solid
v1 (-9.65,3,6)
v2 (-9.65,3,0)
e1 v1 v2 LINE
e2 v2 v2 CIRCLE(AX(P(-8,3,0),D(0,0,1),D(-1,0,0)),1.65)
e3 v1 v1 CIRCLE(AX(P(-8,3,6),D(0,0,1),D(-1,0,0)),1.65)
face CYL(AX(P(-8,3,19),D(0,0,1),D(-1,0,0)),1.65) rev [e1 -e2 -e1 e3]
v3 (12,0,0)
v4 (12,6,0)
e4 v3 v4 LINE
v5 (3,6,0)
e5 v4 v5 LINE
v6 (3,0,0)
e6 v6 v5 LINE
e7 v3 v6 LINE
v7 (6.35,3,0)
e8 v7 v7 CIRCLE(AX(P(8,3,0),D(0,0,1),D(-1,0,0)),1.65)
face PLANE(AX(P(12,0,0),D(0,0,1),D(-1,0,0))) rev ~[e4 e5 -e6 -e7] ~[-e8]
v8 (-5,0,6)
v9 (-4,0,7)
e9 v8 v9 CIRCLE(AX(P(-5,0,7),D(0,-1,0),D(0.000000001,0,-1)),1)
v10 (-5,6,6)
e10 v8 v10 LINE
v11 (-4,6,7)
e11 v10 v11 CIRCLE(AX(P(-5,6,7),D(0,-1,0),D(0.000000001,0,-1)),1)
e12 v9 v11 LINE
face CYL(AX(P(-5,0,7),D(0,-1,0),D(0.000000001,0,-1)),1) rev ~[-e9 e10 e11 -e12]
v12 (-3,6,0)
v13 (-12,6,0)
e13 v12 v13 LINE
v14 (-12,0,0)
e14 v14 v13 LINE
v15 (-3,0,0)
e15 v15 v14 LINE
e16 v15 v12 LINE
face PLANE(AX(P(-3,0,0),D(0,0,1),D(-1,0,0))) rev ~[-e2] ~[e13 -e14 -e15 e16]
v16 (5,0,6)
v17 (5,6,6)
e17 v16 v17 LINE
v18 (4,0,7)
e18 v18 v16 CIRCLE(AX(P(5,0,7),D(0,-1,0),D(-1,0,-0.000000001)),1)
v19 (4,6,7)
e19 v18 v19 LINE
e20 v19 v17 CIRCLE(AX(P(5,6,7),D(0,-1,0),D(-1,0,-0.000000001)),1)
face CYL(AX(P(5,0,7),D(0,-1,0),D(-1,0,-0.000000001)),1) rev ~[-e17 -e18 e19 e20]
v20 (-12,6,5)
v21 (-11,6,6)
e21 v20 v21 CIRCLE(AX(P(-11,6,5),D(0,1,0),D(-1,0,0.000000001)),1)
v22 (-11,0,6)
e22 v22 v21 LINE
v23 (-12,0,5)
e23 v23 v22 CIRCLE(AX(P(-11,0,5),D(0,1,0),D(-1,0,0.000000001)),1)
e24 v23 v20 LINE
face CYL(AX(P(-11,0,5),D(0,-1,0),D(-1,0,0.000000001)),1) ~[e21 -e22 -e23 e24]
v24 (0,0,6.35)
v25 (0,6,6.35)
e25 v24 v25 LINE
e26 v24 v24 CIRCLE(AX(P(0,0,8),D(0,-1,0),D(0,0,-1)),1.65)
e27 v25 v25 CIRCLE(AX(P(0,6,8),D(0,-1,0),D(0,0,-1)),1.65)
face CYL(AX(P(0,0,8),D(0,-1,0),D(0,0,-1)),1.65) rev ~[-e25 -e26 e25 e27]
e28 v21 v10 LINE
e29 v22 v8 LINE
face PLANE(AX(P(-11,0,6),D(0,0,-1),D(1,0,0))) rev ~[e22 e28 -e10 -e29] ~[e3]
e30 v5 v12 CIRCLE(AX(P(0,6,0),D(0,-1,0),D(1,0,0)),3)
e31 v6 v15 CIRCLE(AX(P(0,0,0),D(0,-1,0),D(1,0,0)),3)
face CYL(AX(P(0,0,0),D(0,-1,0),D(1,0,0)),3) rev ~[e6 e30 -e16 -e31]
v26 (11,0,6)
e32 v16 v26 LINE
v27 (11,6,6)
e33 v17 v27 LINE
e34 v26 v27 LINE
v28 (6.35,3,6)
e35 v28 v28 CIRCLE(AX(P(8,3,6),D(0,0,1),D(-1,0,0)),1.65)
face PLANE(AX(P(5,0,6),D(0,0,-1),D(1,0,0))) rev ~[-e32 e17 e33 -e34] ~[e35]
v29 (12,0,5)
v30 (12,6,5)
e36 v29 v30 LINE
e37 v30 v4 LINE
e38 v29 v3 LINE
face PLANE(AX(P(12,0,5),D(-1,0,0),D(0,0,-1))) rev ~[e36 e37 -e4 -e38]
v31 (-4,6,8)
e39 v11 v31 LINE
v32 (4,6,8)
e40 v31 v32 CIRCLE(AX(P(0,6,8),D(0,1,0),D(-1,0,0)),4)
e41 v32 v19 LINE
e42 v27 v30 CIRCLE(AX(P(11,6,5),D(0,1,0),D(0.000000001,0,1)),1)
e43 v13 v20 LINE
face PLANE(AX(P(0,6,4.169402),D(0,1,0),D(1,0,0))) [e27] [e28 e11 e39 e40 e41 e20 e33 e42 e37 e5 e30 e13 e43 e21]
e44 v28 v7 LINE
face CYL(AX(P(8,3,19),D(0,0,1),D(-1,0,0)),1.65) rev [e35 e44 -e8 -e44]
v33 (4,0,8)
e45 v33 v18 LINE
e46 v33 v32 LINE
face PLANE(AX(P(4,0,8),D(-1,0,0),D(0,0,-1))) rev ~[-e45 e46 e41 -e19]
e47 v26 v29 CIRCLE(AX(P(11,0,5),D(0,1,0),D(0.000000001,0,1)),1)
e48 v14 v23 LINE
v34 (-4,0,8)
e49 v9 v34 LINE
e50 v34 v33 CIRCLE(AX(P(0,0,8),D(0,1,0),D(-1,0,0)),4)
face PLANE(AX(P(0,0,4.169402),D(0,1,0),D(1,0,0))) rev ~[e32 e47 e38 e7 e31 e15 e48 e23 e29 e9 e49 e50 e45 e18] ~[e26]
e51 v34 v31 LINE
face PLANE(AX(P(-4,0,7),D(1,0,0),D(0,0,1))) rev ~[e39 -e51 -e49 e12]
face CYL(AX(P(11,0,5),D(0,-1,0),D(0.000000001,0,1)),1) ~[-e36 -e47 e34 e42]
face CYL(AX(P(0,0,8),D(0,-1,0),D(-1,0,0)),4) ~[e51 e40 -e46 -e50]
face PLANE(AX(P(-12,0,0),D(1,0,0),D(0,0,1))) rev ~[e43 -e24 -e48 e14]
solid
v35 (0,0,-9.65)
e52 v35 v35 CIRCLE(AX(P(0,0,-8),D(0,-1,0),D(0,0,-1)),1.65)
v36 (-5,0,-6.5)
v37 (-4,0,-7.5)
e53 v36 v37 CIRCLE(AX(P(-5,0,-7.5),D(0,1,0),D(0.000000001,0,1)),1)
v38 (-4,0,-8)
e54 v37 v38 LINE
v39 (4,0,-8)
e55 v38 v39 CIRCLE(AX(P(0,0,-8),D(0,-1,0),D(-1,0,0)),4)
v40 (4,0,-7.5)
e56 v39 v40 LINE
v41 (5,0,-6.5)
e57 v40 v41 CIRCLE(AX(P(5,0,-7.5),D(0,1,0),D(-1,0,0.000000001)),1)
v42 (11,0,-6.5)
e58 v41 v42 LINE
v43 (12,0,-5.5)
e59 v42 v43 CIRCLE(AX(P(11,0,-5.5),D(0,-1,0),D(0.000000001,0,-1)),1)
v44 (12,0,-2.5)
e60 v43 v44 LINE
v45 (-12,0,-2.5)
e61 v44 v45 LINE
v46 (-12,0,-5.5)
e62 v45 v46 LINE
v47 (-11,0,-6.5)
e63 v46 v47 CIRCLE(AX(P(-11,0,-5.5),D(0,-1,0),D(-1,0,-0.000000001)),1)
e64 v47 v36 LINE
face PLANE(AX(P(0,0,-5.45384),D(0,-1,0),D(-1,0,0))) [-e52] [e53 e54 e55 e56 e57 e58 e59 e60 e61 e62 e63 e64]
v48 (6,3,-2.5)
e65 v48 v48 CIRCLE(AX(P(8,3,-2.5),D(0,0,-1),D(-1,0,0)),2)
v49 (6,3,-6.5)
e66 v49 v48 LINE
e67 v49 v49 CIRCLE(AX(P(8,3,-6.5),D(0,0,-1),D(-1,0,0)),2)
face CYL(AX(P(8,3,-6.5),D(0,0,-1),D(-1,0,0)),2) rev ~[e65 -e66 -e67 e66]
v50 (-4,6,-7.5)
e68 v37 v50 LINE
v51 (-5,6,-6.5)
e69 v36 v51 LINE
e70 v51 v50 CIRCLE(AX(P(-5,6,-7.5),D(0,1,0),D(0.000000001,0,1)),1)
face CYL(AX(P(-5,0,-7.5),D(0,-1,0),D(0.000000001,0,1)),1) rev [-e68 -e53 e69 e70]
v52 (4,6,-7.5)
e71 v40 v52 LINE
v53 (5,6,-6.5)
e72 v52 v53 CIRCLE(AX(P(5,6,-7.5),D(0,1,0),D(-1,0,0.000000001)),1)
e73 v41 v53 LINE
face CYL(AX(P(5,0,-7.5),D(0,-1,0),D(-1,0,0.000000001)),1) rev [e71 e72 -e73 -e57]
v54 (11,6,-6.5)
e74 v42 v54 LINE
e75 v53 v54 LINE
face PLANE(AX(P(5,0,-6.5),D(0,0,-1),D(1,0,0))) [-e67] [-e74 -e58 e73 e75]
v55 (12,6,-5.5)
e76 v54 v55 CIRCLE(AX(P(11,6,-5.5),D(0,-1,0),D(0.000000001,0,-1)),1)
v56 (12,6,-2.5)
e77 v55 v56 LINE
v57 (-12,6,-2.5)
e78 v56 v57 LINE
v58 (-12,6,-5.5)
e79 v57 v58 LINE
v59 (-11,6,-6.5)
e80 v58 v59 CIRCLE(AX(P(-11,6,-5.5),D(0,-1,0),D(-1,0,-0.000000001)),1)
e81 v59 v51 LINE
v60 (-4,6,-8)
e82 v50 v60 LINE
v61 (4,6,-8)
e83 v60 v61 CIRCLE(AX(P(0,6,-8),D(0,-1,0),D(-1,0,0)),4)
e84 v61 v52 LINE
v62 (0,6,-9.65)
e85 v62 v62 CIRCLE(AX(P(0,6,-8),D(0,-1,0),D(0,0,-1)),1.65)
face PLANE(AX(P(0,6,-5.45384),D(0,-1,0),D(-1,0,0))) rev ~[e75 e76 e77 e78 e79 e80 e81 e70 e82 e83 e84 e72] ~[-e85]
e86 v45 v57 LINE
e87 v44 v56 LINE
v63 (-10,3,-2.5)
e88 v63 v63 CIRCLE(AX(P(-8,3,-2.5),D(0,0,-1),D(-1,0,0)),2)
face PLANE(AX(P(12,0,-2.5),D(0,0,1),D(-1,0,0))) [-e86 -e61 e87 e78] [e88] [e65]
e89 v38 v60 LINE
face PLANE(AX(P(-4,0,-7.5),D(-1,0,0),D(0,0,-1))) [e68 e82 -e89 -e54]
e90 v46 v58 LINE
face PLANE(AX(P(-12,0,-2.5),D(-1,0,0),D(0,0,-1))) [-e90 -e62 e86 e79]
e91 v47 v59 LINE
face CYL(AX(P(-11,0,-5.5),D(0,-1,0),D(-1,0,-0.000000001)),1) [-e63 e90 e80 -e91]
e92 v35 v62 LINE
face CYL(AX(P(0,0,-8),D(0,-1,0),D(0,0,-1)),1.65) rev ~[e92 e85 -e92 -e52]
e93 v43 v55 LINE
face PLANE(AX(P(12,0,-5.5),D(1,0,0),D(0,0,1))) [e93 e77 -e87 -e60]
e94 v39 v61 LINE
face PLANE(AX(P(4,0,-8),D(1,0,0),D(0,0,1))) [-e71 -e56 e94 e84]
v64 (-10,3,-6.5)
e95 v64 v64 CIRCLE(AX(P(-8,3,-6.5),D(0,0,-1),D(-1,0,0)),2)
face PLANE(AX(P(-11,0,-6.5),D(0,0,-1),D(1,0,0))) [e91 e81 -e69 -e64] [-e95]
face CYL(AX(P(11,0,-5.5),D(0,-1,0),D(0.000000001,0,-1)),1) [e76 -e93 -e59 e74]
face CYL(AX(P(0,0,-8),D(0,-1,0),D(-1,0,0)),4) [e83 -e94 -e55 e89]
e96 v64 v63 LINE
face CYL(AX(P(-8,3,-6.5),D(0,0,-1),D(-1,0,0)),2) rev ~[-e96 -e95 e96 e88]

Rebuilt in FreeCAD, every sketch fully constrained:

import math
import FreeCAD as App
import Part
import Sketcher
from FreeCAD import Vector

doc = App.newDocument("Part")
body = doc.addObject("PartDesign::Body", "Body")

sketch1 = body.newObject("Sketcher::SketchObject", "Sketch")
sketch1.AttachmentSupport = (doc.getObject("XZ_Plane"), [""])
sketch1.MapMode = "FlatFace"
sketch1.addGeometry([
    Part.LineSegment(Vector(-3, 0, 0), Vector(-12, 0, 0)),
    Part.LineSegment(Vector(-12, 0, 0), Vector(-12, 5, 0)),
    Part.ArcOfCircle(Part.Circle(Vector(-11, 5, 0), Vector(0, 0, 1), 1), math.radians(90), math.radians(180)),
    Part.LineSegment(Vector(-11, 6, 0), Vector(-5, 6, 0)),
    Part.ArcOfCircle(Part.Circle(Vector(-5, 7, 0), Vector(0, 0, 1), 1), math.radians(-90), math.radians(0)),
    Part.LineSegment(Vector(-4, 7, 0), Vector(-4, 8, 0)),
    Part.ArcOfCircle(Part.Circle(Vector(0, 8, 0), Vector(0, 0, 1), 4), math.radians(0), math.radians(180)),
    Part.LineSegment(Vector(4, 8, 0), Vector(4, 7, 0)),
    Part.ArcOfCircle(Part.Circle(Vector(5, 7, 0), Vector(0, 0, 1), 1), math.radians(-180), math.radians(-90)),
    Part.LineSegment(Vector(5, 6, 0), Vector(11, 6, 0)),
    Part.ArcOfCircle(Part.Circle(Vector(11, 5, 0), Vector(0, 0, 1), 1), math.radians(0), math.radians(90)),
    Part.LineSegment(Vector(12, 5, 0), Vector(12, 0, 0)),
    Part.LineSegment(Vector(12, 0, 0), Vector(3, 0, 0)),
    Part.ArcOfCircle(Part.Circle(Vector(0, 0, 0), Vector(0, 0, 1), 3), math.radians(0), math.radians(180)),
], False)
sketch1.addConstraint([
    Sketcher.Constraint("Coincident", 0, 2, 1, 1),
    Sketcher.Constraint("Tangent", 1, 2, 2, 2),
    Sketcher.Constraint("Tangent", 2, 1, 3, 1),
    Sketcher.Constraint("Tangent", 3, 2, 4, 1),
    Sketcher.Constraint("Tangent", 4, 2, 5, 1),
    Sketcher.Constraint("Tangent", 5, 2, 6, 2),
    Sketcher.Constraint("Tangent", 6, 1, 7, 1),
    Sketcher.Constraint("Tangent", 7, 2, 8, 1),
    Sketcher.Constraint("Tangent", 8, 2, 9, 1),
    Sketcher.Constraint("Tangent", 9, 2, 10, 2),
    Sketcher.Constraint("Tangent", 10, 1, 11, 1),
    Sketcher.Constraint("Coincident", 11, 2, 12, 1),
    Sketcher.Constraint("Coincident", 12, 2, 13, 1),
    Sketcher.Constraint("Coincident", 13, 2, 0, 1),
    Sketcher.Constraint("Horizontal", 0),
    Sketcher.Constraint("Vertical", 1),
    Sketcher.Constraint("Horizontal", 3),
    Sketcher.Constraint("Vertical", 5),
    Sketcher.Constraint("Vertical", 7),
    Sketcher.Constraint("Horizontal", 9),
    Sketcher.Constraint("Vertical", 11),
    Sketcher.Constraint("Horizontal", 12),
    Sketcher.Constraint("Coincident", 13, 3, -1, 1),
    Sketcher.Constraint("Equal", 2, 4),
    Sketcher.Constraint("Equal", 4, 8),
    Sketcher.Constraint("Equal", 8, 10),
    Sketcher.Constraint("Symmetric", 0, 2, 11, 2, -1, 1),
    Sketcher.Constraint("Symmetric", 4, 3, 8, 3, -2),
    Sketcher.Constraint("PointOnObject", 0, 2, -1),
    Sketcher.Constraint("Radius", 2, 1.0),
    Sketcher.Constraint("Radius", 6, 4.0),
    Sketcher.Constraint("Radius", 13, 3.0),
    Sketcher.Constraint("DistanceX", 0, 2, 0, 1, 9.0),
    Sketcher.Constraint("DistanceY", 1, 1, 1, 2, 5.0),
    Sketcher.Constraint("DistanceY", 5, 1, 5, 2, 1.0),
])
pad1 = body.newObject("PartDesign::Pad", "Pad")
pad1.Profile = sketch1
pad1.Length = 6
pad1.Reversed = True
body2 = doc.addObject("PartDesign::Body", "Body001")

sketch2 = body2.newObject("Sketcher::SketchObject", "Sketch001")
sketch2.AttachmentSupport = (doc.getObject("XZ_Plane001"), [""])
sketch2.MapMode = "FlatFace"
sketch2.addGeometry([
    Part.LineSegment(Vector(-12, -2.5, 0), Vector(12, -2.5, 0)),
    Part.LineSegment(Vector(12, -2.5, 0), Vector(12, -5.5, 0)),
    Part.ArcOfCircle(Part.Circle(Vector(11, -5.5, 0), Vector(0, 0, 1), 1), math.radians(-90), math.radians(0)),
    Part.LineSegment(Vector(11, -6.5, 0), Vector(5, -6.5, 0)),
    Part.ArcOfCircle(Part.Circle(Vector(5, -7.5, 0), Vector(0, 0, 1), 1), math.radians(90), math.radians(180)),
    Part.LineSegment(Vector(4, -7.5, 0), Vector(4, -8, 0)),
    Part.ArcOfCircle(Part.Circle(Vector(0, -8, 0), Vector(0, 0, 1), 4), math.radians(180), math.radians(360)),
    Part.LineSegment(Vector(-4, -8, 0), Vector(-4, -7.5, 0)),
    Part.ArcOfCircle(Part.Circle(Vector(-5, -7.5, 0), Vector(0, 0, 1), 1), math.radians(0), math.radians(90)),
    Part.LineSegment(Vector(-5, -6.5, 0), Vector(-11, -6.5, 0)),
    Part.ArcOfCircle(Part.Circle(Vector(-11, -5.5, 0), Vector(0, 0, 1), 1), math.radians(-180), math.radians(-90)),
    Part.LineSegment(Vector(-12, -5.5, 0), Vector(-12, -2.5, 0)),
], False)
sketch2.addConstraint([
    Sketcher.Constraint("Coincident", 0, 2, 1, 1),
    Sketcher.Constraint("Tangent", 1, 2, 2, 2),
    Sketcher.Constraint("Tangent", 2, 1, 3, 1),
    Sketcher.Constraint("Tangent", 3, 2, 4, 1),
    Sketcher.Constraint("Tangent", 4, 2, 5, 1),
    Sketcher.Constraint("Tangent", 5, 2, 6, 2),
    Sketcher.Constraint("Tangent", 6, 1, 7, 1),
    Sketcher.Constraint("Tangent", 7, 2, 8, 1),
    Sketcher.Constraint("Tangent", 8, 2, 9, 1),
    Sketcher.Constraint("Tangent", 9, 2, 10, 2),
    Sketcher.Constraint("Tangent", 10, 1, 11, 1),
    Sketcher.Constraint("Coincident", 11, 2, 0, 1),
    Sketcher.Constraint("Horizontal", 0),
    Sketcher.Constraint("Vertical", 1),
    Sketcher.Constraint("Horizontal", 3),
    Sketcher.Constraint("Vertical", 5),
    Sketcher.Constraint("Vertical", 7),
    Sketcher.Constraint("Horizontal", 9),
    Sketcher.Constraint("Vertical", 11),
    Sketcher.Constraint("Equal", 2, 4),
    Sketcher.Constraint("Equal", 4, 8),
    Sketcher.Constraint("Equal", 8, 10),
    Sketcher.Constraint("Symmetric", 4, 3, 8, 3, -2),
    Sketcher.Constraint("Equal", 3, 9),
    Sketcher.Constraint("Radius", 2, 1.0),
    Sketcher.Constraint("Radius", 6, 4.0),
    Sketcher.Constraint("DistanceX", 0, 1, 0, 2, 24.0),
    Sketcher.Constraint("DistanceY", 1, 2, 1, 1, 3.0),
    Sketcher.Constraint("DistanceY", 5, 2, 5, 1, 0.5),
    Sketcher.Constraint("DistanceY", 6, 3, -1, 1, 8.0),
])
pad2 = body2.newObject("PartDesign::Pad", "Pad001")
pad2.Profile = sketch2
pad2.Length = 6
pad2.Reversed = True
body3 = doc.addObject("PartDesign::Body", "Body002")
body3.AllowCompound = True

sketch3 = body3.newObject("Sketcher::SketchObject", "Sketch002")
sketch3.AttachmentSupport = (doc.getObject("XY_Plane002"), [""])
sketch3.MapMode = "FlatFace"
sketch3.addGeometry([
    Part.Circle(Vector(8, 3, 0), Vector(0, 0, 1), 1.65),
    Part.Circle(Vector(-8, 3, 0), Vector(0, 0, 1), 1.65),
], False)
sketch3.addConstraint([
    Sketcher.Constraint("Equal", 0, 1),
    Sketcher.Constraint("Symmetric", 0, 3, 1, 3, -2),
    Sketcher.Constraint("Diameter", 0, 3.3),
    Sketcher.Constraint("DistanceX", -1, 1, 0, 3, 8.0),
    Sketcher.Constraint("DistanceY", -1, 1, 0, 3, 3.0),
])
pad3 = body3.newObject("PartDesign::Pad", "Pad002")
pad3.Profile = sketch3
pad3.Type = "TwoLengths"
pad3.Length = 19
pad3.Length2 = 19
pad3.Reversed = True
doc.recompute()

body4 = doc.addObject("PartDesign::Body", "Body003")
body4.BaseFeature = body3
boolean = body.newObject("PartDesign::Boolean", "Boolean")
boolean.Type = "Cut"
boolean.addObjects([body4])
doc.recompute()

boolean2 = body2.newObject("PartDesign::Boolean", "Boolean001")
boolean2.Type = "Cut"
boolean2.addObjects([body3])
body5 = doc.addObject("PartDesign::Body", "Body004")
body5.AllowCompound = True

sketch4 = body5.newObject("Sketcher::SketchObject", "Sketch003")
sketch4.AttachmentSupport = (doc.getObject("XZ_Plane004"), [""])
sketch4.MapMode = "FlatFace"
sketch4.addGeometry([
    Part.Circle(Vector(0, 8, 0), Vector(0, 0, 1), 1.65),
    Part.Circle(Vector(0, -8, 0), Vector(0, 0, 1), 1.65),
], False)
sketch4.addConstraint([
    Sketcher.Constraint("Equal", 0, 1),
    Sketcher.Constraint("Symmetric", 0, 3, 1, 3, -1, 1),
    Sketcher.Constraint("PointOnObject", 0, 3, -2),
    Sketcher.Constraint("Diameter", 0, 3.3),
    Sketcher.Constraint("DistanceY", -1, 1, 0, 3, 8.0),
])
pad4 = body5.newObject("PartDesign::Pad", "Pad003")
pad4.Profile = sketch4
pad4.Length = 8
pad4.Reversed = True
doc.recompute()

body6 = doc.addObject("PartDesign::Body", "Body005")
body6.BaseFeature = body5
boolean3 = body.newObject("PartDesign::Boolean", "Boolean002")
boolean3.Type = "Cut"
boolean3.addObjects([body6])
doc.recompute()

boolean4 = body2.newObject("PartDesign::Boolean", "Boolean003")
boolean4.Type = "Cut"
boolean4.addObjects([body5])

sketch5 = body2.newObject("Sketcher::SketchObject", "Sketch004")
sketch5.AttachmentSupport = (doc.getObject("XY_Plane001"), [""])
sketch5.MapMode = "FlatFace"
sketch5.AttachmentOffset = App.Placement(Vector(0, 0, -6.5), App.Rotation())
sketch5.addGeometry([
    Part.Circle(Vector(8, 3, 0), Vector(0, 0, 1), 2),
    Part.Circle(Vector(-8, 3, 0), Vector(0, 0, 1), 2),
], False)
sketch5.addConstraint([
    Sketcher.Constraint("Equal", 0, 1),
    Sketcher.Constraint("Symmetric", 0, 3, 1, 3, -2),
    Sketcher.Constraint("Diameter", 0, 4.0),
    Sketcher.Constraint("DistanceX", -1, 1, 0, 3, 8.0),
    Sketcher.Constraint("DistanceY", -1, 1, 0, 3, 3.0),
])
pocket1 = body2.newObject("PartDesign::Pocket", "Pocket")
pocket1.Profile = sketch5
pocket1.Length = 5
pocket1.Reversed = True

doc.recompute()
